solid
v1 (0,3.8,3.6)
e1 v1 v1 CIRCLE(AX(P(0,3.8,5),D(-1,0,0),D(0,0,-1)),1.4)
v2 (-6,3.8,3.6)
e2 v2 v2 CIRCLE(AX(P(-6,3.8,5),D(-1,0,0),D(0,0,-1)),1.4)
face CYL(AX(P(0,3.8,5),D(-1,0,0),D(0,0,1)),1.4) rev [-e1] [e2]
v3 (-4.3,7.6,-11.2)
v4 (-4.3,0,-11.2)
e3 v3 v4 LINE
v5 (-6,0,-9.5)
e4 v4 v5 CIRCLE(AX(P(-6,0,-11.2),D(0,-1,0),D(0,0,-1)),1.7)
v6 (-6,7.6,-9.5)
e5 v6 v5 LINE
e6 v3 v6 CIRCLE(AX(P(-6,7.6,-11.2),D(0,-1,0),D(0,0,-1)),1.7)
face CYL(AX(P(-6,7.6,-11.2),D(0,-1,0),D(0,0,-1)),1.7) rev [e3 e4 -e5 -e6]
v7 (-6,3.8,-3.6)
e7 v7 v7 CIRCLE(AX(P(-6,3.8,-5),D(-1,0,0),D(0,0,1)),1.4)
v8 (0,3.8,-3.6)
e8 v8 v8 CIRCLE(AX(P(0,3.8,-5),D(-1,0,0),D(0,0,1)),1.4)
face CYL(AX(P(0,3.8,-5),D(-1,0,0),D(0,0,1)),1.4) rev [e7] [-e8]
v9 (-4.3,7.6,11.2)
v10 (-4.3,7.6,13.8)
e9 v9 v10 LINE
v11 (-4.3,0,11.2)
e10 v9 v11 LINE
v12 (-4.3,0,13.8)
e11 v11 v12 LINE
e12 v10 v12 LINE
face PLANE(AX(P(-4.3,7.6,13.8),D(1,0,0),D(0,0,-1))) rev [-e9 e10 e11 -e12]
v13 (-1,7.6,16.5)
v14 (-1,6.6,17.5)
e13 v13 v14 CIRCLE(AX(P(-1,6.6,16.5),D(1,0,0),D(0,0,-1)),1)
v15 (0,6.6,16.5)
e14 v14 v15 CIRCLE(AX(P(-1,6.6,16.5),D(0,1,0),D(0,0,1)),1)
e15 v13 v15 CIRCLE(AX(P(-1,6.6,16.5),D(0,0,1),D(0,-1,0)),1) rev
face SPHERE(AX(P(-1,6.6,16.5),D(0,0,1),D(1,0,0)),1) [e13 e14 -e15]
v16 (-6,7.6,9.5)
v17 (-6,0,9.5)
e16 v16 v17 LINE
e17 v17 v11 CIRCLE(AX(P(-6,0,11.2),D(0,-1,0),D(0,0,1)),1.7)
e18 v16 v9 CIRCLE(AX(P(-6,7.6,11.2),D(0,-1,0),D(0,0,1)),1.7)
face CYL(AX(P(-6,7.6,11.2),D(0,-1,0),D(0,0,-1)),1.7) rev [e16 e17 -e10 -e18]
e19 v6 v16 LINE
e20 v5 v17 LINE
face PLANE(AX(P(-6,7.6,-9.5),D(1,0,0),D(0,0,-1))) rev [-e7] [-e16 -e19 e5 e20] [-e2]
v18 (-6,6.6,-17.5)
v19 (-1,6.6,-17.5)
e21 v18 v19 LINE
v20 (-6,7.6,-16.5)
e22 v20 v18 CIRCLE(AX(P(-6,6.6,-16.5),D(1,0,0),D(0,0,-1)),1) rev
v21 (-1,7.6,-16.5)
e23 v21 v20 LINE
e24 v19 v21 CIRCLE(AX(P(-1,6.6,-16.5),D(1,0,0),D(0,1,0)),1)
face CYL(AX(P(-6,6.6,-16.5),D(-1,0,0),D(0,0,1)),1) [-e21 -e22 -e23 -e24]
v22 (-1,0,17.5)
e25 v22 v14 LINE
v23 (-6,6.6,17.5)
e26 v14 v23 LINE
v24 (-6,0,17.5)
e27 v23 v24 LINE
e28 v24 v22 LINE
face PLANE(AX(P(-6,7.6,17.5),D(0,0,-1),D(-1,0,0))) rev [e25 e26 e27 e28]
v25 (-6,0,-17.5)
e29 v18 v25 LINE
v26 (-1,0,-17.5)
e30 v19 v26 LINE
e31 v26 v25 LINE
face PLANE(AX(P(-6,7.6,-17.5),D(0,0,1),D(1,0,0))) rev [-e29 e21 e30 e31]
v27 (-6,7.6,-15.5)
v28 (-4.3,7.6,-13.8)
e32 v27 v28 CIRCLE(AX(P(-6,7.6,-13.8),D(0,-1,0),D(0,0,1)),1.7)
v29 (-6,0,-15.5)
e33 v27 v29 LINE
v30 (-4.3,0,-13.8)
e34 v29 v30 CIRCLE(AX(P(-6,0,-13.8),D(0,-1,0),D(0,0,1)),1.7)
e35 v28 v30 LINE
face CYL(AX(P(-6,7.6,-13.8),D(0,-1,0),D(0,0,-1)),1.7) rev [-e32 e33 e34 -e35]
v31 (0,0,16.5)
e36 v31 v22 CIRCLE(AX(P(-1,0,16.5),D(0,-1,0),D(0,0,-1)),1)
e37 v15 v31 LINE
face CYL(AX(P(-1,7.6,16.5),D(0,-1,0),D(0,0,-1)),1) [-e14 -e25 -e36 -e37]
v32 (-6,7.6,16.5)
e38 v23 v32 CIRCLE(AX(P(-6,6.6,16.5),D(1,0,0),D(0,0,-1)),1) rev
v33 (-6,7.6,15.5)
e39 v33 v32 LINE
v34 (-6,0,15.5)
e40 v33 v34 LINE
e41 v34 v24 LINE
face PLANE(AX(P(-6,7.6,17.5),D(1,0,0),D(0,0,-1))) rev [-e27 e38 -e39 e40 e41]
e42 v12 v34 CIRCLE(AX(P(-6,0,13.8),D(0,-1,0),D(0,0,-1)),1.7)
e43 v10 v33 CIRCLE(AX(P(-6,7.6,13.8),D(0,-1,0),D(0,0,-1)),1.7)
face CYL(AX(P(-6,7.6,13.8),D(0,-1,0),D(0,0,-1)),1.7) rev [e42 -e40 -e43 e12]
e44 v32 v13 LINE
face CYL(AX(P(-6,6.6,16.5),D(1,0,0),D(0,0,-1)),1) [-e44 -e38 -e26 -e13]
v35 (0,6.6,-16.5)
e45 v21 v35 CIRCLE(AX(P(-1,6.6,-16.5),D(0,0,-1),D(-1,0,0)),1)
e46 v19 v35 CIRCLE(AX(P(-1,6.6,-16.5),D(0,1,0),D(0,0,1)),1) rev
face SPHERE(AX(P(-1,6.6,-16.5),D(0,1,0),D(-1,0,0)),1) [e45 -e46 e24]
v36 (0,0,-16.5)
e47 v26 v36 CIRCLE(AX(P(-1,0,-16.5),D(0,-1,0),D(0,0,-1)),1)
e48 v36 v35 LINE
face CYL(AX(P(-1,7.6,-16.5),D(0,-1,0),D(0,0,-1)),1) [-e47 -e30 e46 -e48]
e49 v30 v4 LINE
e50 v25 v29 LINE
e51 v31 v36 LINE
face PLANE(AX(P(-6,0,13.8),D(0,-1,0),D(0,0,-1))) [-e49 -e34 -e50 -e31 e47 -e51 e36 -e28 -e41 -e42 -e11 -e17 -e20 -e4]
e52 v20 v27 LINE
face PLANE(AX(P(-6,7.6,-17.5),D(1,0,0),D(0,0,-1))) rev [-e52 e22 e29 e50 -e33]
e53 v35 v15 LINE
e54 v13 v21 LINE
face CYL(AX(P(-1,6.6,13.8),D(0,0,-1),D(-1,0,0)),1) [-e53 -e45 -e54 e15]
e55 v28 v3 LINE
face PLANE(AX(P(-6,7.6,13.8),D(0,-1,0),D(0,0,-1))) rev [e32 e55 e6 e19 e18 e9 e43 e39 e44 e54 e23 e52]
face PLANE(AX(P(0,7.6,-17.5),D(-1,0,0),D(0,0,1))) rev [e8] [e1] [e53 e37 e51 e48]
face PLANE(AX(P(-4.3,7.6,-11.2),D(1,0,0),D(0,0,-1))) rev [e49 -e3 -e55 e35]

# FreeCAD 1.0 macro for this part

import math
import FreeCAD as App
import Part
import Sketcher

V = App.Vector
Q = App.Units.Quantity


def edges_at(feature, points):
    """Names of the edges that pass closest to the given points."""
    edges = feature.Shape.Edges
    near = lambda p: min(range(len(edges)), key=lambda i: edges[i].distToShape(Part.Vertex(*p))[0])
    return sorted({f"Edge{near(p) + 1}" for p in points})

doc = App.newDocument("Part")
params = doc.addObject("Spreadsheet::Sheet", "Params")
for row, (alias, value) in enumerate([
    ("sketch1_radius", "1.7 mm"),
    ("sketch1_width", "6 mm"),
    ("sketch1_height", "2 mm"),
    ("sketch1_height2", "19 mm"),
    ("sketch1_height3", "35 mm"),
    ("pad1_length", "7.6 mm"),
    ("sketch2_diameter", "2.8 mm"),
    ("fillet_radius", "1 mm"),
], start=1):
    params.set(f"A{row}", alias)
    params.set(f"B{row}", "=" + value)
    params.setAlias(f"B{row}", alias)

body = doc.addObject("PartDesign::Body", "Body")

sketch1 = doc.addObject("Sketcher::SketchObject", "Sketch")
body.addObject(sketch1)
sketch1.AttachmentSupport = (doc.XZ_Plane, [""])
sketch1.MapMode = "FlatFace"
sketch1.addGeometry([
    Part.LineSegment(V(-6, -17.5, 0), V(-6, -15.5, 0)),
    Part.ArcOfCircle(Part.Circle(V(-6, -13.8, 0), V(0, 0, 1), 1.7), math.radians(-90), math.radians(0)),
    Part.LineSegment(V(-4.3, -13.8, 0), V(-4.3, -11.2, 0)),
    Part.ArcOfCircle(Part.Circle(V(-6, -11.2, 0), V(0, 0, 1), 1.7), math.radians(0), math.radians(90)),
    Part.LineSegment(V(-6, -9.5, 0), V(-6, 9.5, 0)),
    Part.ArcOfCircle(Part.Circle(V(-6, 11.2, 0), V(0, 0, 1), 1.7), math.radians(-90), math.radians(0)),
    Part.LineSegment(V(-4.3, 11.2, 0), V(-4.3, 13.8, 0)),
    Part.ArcOfCircle(Part.Circle(V(-6, 13.8, 0), V(0, 0, 1), 1.7), math.radians(0), math.radians(90)),
    Part.LineSegment(V(-6, 15.5, 0), V(-6, 17.5, 0)),
    Part.LineSegment(V(-6, 17.5, 0), V(0, 17.5, 0)),
    Part.LineSegment(V(0, 17.5, 0), V(0, -17.5, 0)),
    Part.LineSegment(V(0, -17.5, 0), V(-6, -17.5, 0)),
], False)
sketch1.addConstraint([
    Sketcher.Constraint("Coincident", 0, 2, 1, 1),
    Sketcher.Constraint("Tangent", 1, 2, 2, 1),
    Sketcher.Constraint("Tangent", 2, 2, 3, 1),
    Sketcher.Constraint("Coincident", 3, 2, 4, 1),
    Sketcher.Constraint("Coincident", 4, 2, 5, 1),
    Sketcher.Constraint("Tangent", 5, 2, 6, 1),
    Sketcher.Constraint("Tangent", 6, 2, 7, 1),
    Sketcher.Constraint("Coincident", 7, 2, 8, 1),
    Sketcher.Constraint("Coincident", 8, 2, 9, 1),
    Sketcher.Constraint("Coincident", 9, 2, 10, 1),
    Sketcher.Constraint("Coincident", 10, 2, 11, 1),
    Sketcher.Constraint("Coincident", 11, 2, 0, 1),
    Sketcher.Constraint("Vertical", 0),
    Sketcher.Constraint("Vertical", 2),
    Sketcher.Constraint("Vertical", 4),
    Sketcher.Constraint("Vertical", 6),
    Sketcher.Constraint("Vertical", 8),
    Sketcher.Constraint("Horizontal", 9),
    Sketcher.Constraint("Vertical", 10),
    Sketcher.Constraint("Horizontal", 11),
    Sketcher.Constraint("Equal", 1, 3),
    Sketcher.Constraint("Equal", 3, 5),
    Sketcher.Constraint("Equal", 5, 7),
    Sketcher.Constraint("Symmetric", 9, 2, 10, 2, -1, 1),
    Sketcher.Constraint("Symmetric", 3, 3, 5, 3, -1),
    Sketcher.Constraint("Symmetric", 0, 2, 7, 2, -1),
    Sketcher.Constraint("Vertical", 7, 3, 0, 2),
    Sketcher.Constraint("Vertical", 0, 2, 3, 2),
    Sketcher.Constraint("Radius", 1, Q("1.7 mm")),
    Sketcher.Constraint("DistanceX", 9, 1, 9, 2, Q("6 mm")),
    Sketcher.Constraint("DistanceY", 0, 1, 0, 2, Q("2 mm")),
    Sketcher.Constraint("DistanceY", 4, 1, 4, 2, Q("19 mm")),
    Sketcher.Constraint("DistanceY", 10, 2, 10, 1, Q("35 mm")),
])
sketch1.setExpression("Constraints[28]", "Params.sketch1_radius")
sketch1.setExpression("Constraints[29]", "Params.sketch1_width")
sketch1.setExpression("Constraints[30]", "Params.sketch1_height")
sketch1.setExpression("Constraints[31]", "Params.sketch1_height2")
sketch1.setExpression("Constraints[32]", "Params.sketch1_height3")
pad1 = doc.addObject("PartDesign::Pad", "Pad")
body.addObject(pad1)
pad1.Profile = sketch1
pad1.setExpression("Length", "Params.pad1_length")
pad1.Reversed = True

sketch2 = doc.addObject("Sketcher::SketchObject", "Sketch001")
body.addObject(sketch2)
sketch2.AttachmentSupport = (doc.YZ_Plane, [""])
sketch2.MapMode = "FlatFace"
sketch2.AttachmentOffset = App.Placement(V(0, 0, -6), App.Rotation())
sketch2.addGeometry([
    Part.Circle(V(3.8, -5, 0), V(0, 0, 1), 1.4),
    Part.Circle(V(3.8, 5, 0), V(0, 0, 1), 1.4),
], False)
sketch2.addConstraint([
    Sketcher.Constraint("Equal", 0, 1),
    Sketcher.Constraint("Symmetric", 0, 3, 1, 3, -1),
    Sketcher.Constraint("Diameter", 0, Q("2.8 mm")),
    Sketcher.Constraint("DistanceY", 0, 3, -1, 1, Q("5 mm")),
    Sketcher.Constraint("DistanceX", -1, 1, 0, 3, Q("3.8 mm")),
])
sketch2.setExpression("Constraints[2]", "Params.sketch2_diameter")
pocket1 = doc.addObject("PartDesign::Pocket", "Pocket")
body.addObject(pocket1)
pocket1.Profile = sketch2
pocket1.Type = "ThroughAll"
pocket1.Reversed = True
doc.recompute()

fillet = doc.addObject("PartDesign::Fillet", "Fillet")
body.addObject(fillet)
fillet.Base = (pocket1, edges_at(pocket1, [
    (0, 3.8, -17.5),
    (0, 3.8, 17.5),
    (-3, 7.6, 17.5),
    (0, 7.6, 0),
    (-3, 7.6, -17.5),
]))
fillet.setExpression("Radius", "Params.fillet_radius")

doc.recompute()
